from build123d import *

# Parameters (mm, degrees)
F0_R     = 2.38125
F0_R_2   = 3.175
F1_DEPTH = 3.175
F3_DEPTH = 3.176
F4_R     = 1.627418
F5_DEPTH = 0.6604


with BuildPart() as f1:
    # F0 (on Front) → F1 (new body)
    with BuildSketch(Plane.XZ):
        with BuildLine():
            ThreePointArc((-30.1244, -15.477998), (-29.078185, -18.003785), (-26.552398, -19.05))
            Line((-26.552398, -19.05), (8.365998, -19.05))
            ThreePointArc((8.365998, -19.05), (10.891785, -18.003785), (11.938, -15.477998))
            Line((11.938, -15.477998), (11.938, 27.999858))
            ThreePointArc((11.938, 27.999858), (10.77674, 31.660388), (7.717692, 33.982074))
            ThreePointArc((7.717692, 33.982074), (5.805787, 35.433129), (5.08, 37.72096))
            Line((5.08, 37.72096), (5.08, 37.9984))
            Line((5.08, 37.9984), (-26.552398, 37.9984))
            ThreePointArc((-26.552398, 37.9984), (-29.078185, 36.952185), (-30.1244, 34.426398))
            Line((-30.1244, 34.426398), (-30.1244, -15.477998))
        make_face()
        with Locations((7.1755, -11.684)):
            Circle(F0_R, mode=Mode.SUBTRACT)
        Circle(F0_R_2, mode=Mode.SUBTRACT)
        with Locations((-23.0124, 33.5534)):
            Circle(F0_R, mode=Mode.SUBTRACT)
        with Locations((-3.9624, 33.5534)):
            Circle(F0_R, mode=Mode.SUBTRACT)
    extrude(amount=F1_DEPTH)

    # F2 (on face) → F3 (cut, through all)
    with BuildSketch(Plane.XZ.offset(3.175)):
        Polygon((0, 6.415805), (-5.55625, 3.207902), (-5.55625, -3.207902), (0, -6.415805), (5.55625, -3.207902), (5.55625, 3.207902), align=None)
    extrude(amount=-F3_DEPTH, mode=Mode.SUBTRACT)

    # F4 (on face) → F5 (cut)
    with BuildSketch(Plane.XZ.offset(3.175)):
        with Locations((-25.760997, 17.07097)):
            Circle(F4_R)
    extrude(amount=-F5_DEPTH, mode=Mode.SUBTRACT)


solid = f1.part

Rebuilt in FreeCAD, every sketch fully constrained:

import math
import FreeCAD as App
import Part
import Sketcher
Q = App.Units.Quantity


def add_polygon(sketch, points):
    """Adds a closed chain of lines whose ends are joined by coincident constraints."""
    first, n = sketch.GeometryCount, len(points)
    for a, b in zip(points, points[1:] + points[:1]):
        sketch.addGeometry(Part.LineSegment(App.Vector(*a, 0), App.Vector(*b, 0)), False)
    for i in range(n):
        sketch.addConstraint(Sketcher.Constraint("Coincident", first + i, 2, first + (i + 1) % n, 1))

doc = App.newDocument("Part")
body = doc.addObject("PartDesign::Body", "Body")

# Sketch on XZ plane
sketch1 = body.newObject("Sketcher::SketchObject", "Sketch")
sketch1.AttachmentSupport = (doc.getObject("XZ_Plane"), [""])
sketch1.MapMode = "FlatFace"
sketch1.addGeometry([
    Part.ArcOfCircle(Part.Circle(App.Vector(-26.55, -15.48, 0), App.Vector(0, 0, 1), 3.57), math.radians(180), math.radians(270)),  # 0
    Part.LineSegment(App.Vector(-26.55, -19.05, 0), App.Vector(8.37, -19.05, 0)),  # 1
    Part.ArcOfCircle(Part.Circle(App.Vector(8.37, -15.48, 0), App.Vector(0, 0, 1), 3.57), math.radians(-90), math.radians(0)),  # 2
    Part.LineSegment(App.Vector(11.94, -15.48, 0), App.Vector(11.94, 28, 0)),  # 3
    Part.ArcOfCircle(Part.Circle(App.Vector(5.59, 28, 0), App.Vector(0, 0, 1), 6.35), math.radians(0), math.radians(70)),  # 4
    Part.ArcOfCircle(Part.Circle(App.Vector(9.05, 37.72, 0), App.Vector(0, 0, 1), 3.97), math.radians(180), math.radians(250)),  # 5
    Part.LineSegment(App.Vector(5.08, 37.72, 0), App.Vector(5.08, 38, 0)),  # 6
    Part.LineSegment(App.Vector(5.08, 38, 0), App.Vector(-26.55, 38, 0)),  # 7
    Part.ArcOfCircle(Part.Circle(App.Vector(-26.55, 34.43, 0), App.Vector(0, 0, 1), 3.57), math.radians(90), math.radians(180)),  # 8
    Part.LineSegment(App.Vector(-30.12, 34.43, 0), App.Vector(-30.12, -15.48, 0)),  # 9
    Part.Circle(App.Vector(7.18, -11.68, 0), App.Vector(0, 0, 1), 2.38),  # 10
    Part.Circle(App.Vector(0, 0, 0), App.Vector(0, 0, 1), 3.17),  # 11
    Part.Circle(App.Vector(-23.01, 33.55, 0), App.Vector(0, 0, 1), 2.38),  # 12
    Part.Circle(App.Vector(-3.96, 33.55, 0), App.Vector(0, 0, 1), 2.38),  # 13
], False)
sketch1.addConstraint([
    Sketcher.Constraint("Tangent", 0, 2, 1, 1),
    Sketcher.Constraint("Tangent", 1, 2, 2, 1),
    Sketcher.Constraint("Tangent", 2, 2, 3, 1),
    Sketcher.Constraint("Tangent", 3, 2, 4, 1),
    Sketcher.Constraint("Tangent", 4, 2, 5, 2),
    Sketcher.Constraint("Tangent", 5, 1, 6, 1),
    Sketcher.Constraint("Coincident", 6, 2, 7, 1),
    Sketcher.Constraint("Tangent", 7, 2, 8, 1),
    Sketcher.Constraint("Tangent", 8, 2, 9, 1),
    Sketcher.Constraint("Tangent", 9, 2, 0, 1),
    Sketcher.Constraint("Horizontal", 1),
    Sketcher.Constraint("Vertical", 3),
    Sketcher.Constraint("Vertical", 6),
    Sketcher.Constraint("Horizontal", 7),
    Sketcher.Constraint("Vertical", 9),
    Sketcher.Constraint("Coincident", 11, 3, -1, 1),
    Sketcher.Constraint("Equal", 0, 2),
    Sketcher.Constraint("Equal", 2, 8),
    Sketcher.Constraint("Equal", 10, 12),
    Sketcher.Constraint("Equal", 12, 13),
    Sketcher.Constraint("Horizontal", 12, 3, 13, 3),
    Sketcher.Constraint("Diameter", 11, Q("0.25 in")),
    Sketcher.Constraint("Radius", 4, Q("0.2499999 in")),
    Sketcher.Constraint("Diameter", 10, Q("0.1875 in")),
    Sketcher.Constraint("Radius", 5, Q("0.15625 in")),
    Sketcher.Constraint("DistanceX", -1, 1, 5, 1, Q("0.2 in")),
    Sketcher.Constraint("DistanceX", -1, 1, 4, 3, Q("0.2200001 in")),
    Sketcher.Constraint("DistanceY", 10, 3, -1, 1, Q("0.46 in")),
    Sketcher.Constraint("DistanceY", 0, 2, -1, 1, Q("0.75 in")),
    Sketcher.Constraint("Radius", 0, Q("3.572001 mm")),
    Sketcher.Constraint("DistanceX", 12, 3, 13, 3, Q("0.75 in")),
    Sketcher.Constraint("DistanceX", 8, 2, 12, 3, Q("0.28 in")),
    Sketcher.Constraint("DistanceX", 12, 3, -1, 1, Q("0.906 in")),
    Sketcher.Constraint("DistanceY", -1, 1, 12, 3, Q("1.321 in")),
    Sketcher.Constraint("DistanceY", -1, 1, 6, 2, Q("1.496 in")),
    Sketcher.Constraint("DistanceX", 4, 3, 10, 3, Q("0.0624999 in")),
    Sketcher.Constraint("DistanceY", 6, 1, 6, 2, Q("0.27744 mm")),
])
pad1 = body.newObject("PartDesign::Pad", "Pad")
pad1.Profile = sketch1
pad1.Length = Q("0.125 in")

# Sketch on XZ plane
sketch2 = body.newObject("Sketcher::SketchObject", "Sketch001")
sketch2.AttachmentSupport = (doc.getObject("XZ_Plane"), [""])
sketch2.MapMode = "FlatFace"
sketch2.AttachmentOffset = App.Placement(App.Vector(0, 0, 0.125 * 25.4), App.Rotation())
add_polygon(sketch2, [(0, 6), (-6, 3), (-6, -3), (0, -6), (6, -3), (6, 3)])  # lines 0-5
sketch2.addConstraint([
    Sketcher.Constraint("Vertical", 1),
    Sketcher.Constraint("Vertical", 4),
    Sketcher.Constraint("Symmetric", 0, 2, 3, 2, -1, 1),
    Sketcher.Constraint("Symmetric", 2, 2, 5, 2, -1, 1),
    Sketcher.Constraint("PointOnObject", 2, 2, -2),
    Sketcher.Constraint("Parallel", 2, 5),
    Sketcher.Constraint("Horizontal", 1, 2, 3, 2),
    Sketcher.Constraint("Angle", 0, Q("-149.999996 deg")),
    Sketcher.Constraint("DistanceX", 0, 2, -1, 1, Q("0.21875 in")),
    Sketcher.Constraint("DistanceY", -1, 1, 0, 2, Q("3.207902 mm")),
])
pocket1 = body.newObject("PartDesign::Pocket", "Pocket")
pocket1.Profile = sketch2
pocket1.Type = "ThroughAll"

# Sketch on XZ plane
sketch3 = body.newObject("Sketcher::SketchObject", "Sketch002")
sketch3.AttachmentSupport = (doc.getObject("XZ_Plane"), [""])
sketch3.MapMode = "FlatFace"
sketch3.AttachmentOffset = App.Placement(App.Vector(0, 0, 0.125 * 25.4), App.Rotation())
sketch3.addGeometry(Part.Circle(App.Vector(-25.8, 17.1, 0), App.Vector(0, 0, 1), 1.6), False)
sketch3.addConstraint([
    Sketcher.Constraint("Diameter", 0, Q("3.254836 mm")),
    Sketcher.Constraint("DistanceY", -1, 1, 0, 3, Q("17.07097 mm")),
    Sketcher.Constraint("DistanceX", 0, 3, -1, 1, Q("25.760997 mm")),
])
pocket2 = body.newObject("PartDesign::Pocket", "Pocket001")
pocket2.Profile = sketch3
pocket2.Length = Q("0.026 in")

doc.recompute()
